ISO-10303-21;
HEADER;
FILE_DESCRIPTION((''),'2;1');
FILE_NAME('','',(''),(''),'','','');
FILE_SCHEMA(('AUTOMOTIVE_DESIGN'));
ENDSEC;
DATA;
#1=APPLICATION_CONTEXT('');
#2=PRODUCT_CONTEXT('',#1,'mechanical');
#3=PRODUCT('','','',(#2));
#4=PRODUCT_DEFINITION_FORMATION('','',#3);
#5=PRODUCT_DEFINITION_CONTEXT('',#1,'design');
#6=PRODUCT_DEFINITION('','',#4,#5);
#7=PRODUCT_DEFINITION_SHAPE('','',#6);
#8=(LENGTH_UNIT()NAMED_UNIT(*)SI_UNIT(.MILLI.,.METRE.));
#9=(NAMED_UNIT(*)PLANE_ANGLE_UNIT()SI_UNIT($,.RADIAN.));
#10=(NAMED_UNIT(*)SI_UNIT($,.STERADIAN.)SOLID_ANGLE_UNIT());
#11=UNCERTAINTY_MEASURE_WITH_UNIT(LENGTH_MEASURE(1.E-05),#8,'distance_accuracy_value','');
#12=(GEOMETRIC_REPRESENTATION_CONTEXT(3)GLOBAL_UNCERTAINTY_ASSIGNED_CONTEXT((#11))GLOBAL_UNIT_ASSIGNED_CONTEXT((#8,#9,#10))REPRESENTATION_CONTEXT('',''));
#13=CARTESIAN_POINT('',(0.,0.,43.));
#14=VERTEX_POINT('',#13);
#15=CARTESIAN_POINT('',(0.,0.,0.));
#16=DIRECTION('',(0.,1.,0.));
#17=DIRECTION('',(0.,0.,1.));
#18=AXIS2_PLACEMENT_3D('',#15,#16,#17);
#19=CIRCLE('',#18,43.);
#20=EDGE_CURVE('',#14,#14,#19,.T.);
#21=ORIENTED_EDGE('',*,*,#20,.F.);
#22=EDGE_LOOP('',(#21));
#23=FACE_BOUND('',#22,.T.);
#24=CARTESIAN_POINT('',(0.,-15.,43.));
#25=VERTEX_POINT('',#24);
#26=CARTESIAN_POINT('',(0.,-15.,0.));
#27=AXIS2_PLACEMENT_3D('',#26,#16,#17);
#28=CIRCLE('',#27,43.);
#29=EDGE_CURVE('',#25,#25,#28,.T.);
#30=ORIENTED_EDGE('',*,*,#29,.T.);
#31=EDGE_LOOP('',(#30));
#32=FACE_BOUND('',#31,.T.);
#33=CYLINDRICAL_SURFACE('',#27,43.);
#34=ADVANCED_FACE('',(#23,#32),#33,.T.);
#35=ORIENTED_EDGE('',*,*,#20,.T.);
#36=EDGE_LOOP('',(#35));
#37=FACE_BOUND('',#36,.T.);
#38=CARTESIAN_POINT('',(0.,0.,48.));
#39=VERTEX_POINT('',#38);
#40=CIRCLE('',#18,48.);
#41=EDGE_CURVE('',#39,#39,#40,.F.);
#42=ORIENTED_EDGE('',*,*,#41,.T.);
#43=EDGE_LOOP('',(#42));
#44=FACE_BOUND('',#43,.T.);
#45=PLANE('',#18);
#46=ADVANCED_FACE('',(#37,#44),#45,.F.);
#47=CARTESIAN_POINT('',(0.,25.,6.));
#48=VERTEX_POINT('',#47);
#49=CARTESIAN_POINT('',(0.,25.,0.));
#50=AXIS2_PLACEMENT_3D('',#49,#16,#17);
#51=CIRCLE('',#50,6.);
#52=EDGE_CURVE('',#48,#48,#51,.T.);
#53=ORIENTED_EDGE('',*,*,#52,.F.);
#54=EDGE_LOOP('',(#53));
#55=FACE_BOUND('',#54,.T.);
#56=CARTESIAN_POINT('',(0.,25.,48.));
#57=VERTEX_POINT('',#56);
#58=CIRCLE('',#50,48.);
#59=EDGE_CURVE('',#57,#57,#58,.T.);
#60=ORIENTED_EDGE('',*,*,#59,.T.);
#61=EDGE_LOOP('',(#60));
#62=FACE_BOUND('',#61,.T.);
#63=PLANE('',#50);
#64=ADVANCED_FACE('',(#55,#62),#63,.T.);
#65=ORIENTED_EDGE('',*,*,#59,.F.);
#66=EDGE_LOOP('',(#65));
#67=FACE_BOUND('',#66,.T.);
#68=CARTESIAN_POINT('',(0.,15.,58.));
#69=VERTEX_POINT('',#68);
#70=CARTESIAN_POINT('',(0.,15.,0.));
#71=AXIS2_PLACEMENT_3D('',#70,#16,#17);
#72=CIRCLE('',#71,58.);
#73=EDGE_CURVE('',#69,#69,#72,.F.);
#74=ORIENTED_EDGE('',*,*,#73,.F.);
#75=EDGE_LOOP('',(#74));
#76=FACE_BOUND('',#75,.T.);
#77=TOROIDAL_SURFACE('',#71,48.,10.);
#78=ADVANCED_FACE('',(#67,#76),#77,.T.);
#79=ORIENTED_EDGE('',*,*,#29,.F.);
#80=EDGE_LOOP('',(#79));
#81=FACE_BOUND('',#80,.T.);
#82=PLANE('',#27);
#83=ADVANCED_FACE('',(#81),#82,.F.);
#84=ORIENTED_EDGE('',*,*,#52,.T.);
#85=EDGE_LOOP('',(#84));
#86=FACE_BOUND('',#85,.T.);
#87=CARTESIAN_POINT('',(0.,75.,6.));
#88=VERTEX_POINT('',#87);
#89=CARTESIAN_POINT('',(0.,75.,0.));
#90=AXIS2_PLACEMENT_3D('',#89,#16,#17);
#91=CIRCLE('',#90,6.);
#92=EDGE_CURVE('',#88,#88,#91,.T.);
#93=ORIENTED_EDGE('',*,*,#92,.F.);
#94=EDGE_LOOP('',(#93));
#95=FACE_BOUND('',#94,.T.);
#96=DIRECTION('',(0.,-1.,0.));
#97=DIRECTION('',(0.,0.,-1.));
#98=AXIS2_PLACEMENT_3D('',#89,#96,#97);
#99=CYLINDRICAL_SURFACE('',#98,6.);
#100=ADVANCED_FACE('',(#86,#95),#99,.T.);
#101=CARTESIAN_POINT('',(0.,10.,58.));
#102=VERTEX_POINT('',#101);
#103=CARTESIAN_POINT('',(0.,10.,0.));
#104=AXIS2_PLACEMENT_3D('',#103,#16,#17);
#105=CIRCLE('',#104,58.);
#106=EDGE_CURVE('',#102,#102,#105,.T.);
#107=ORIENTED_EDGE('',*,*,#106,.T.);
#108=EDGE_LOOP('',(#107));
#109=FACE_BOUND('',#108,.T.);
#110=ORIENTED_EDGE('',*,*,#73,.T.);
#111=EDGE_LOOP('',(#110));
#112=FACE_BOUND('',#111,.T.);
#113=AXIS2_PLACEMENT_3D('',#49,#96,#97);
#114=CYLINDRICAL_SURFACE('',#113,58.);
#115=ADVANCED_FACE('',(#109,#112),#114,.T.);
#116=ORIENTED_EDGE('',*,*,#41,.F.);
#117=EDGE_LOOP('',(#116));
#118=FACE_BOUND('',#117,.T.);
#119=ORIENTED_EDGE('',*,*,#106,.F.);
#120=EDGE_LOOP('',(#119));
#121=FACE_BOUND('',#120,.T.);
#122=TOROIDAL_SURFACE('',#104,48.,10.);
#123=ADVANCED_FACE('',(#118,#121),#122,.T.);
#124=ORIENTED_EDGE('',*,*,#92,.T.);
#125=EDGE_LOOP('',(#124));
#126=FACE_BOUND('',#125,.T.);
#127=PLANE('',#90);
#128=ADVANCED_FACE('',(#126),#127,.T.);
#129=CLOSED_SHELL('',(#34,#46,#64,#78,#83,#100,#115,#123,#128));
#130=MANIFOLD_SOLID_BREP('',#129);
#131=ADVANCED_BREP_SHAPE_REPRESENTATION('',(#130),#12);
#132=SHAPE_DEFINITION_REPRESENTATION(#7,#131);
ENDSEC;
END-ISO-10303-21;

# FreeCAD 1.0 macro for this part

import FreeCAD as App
import Part
import Sketcher


def edges_at(feature, points):
    """Names of the edges that pass closest to the given points."""
    edges = feature.Shape.Edges
    near = lambda p: min(range(len(edges)), key=lambda i: edges[i].distToShape(Part.Vertex(*p))[0])
    return sorted({f"Edge{near(p) + 1}" for p in points})

doc = App.newDocument("Part")
body = doc.addObject("PartDesign::Body", "Body")

sketch1 = doc.addObject("Sketcher::SketchObject", "Sketch")
body.addObject(sketch1)
sketch1.AttachmentSupport = (doc.XZ_Plane, [""])
sketch1.MapMode = "FlatFace"
sketch1.addGeometry(Part.Circle(App.Vector(0, 0, 0), App.Vector(0, 0, 1), 58), False)
sketch1.addConstraint(Sketcher.Constraint("Coincident", 0, 3, -1, 1))
sketch1.addConstraint(Sketcher.Constraint("Diameter", 0, 116.0))
pad1 = doc.addObject("PartDesign::Pad", "Pad")
body.addObject(pad1)
pad1.Profile = sketch1
pad1.Length = 25
pad1.Reversed = True

sketch2 = doc.addObject("Sketcher::SketchObject", "Sketch001")
body.addObject(sketch2)
sketch2.AttachmentSupport = (doc.XZ_Plane, [""])
sketch2.MapMode = "FlatFace"
sketch2.addGeometry(Part.Circle(App.Vector(0, 0, 0), App.Vector(0, 0, 1), 43), False)
sketch2.addConstraint(Sketcher.Constraint("Coincident", 0, 3, -1, 1))
sketch2.addConstraint(Sketcher.Constraint("Diameter", 0, 86.0))
pad2 = doc.addObject("PartDesign::Pad", "Pad001")
body.addObject(pad2)
pad2.Profile = sketch2
pad2.Length = 15
doc.recompute()

fillet = doc.addObject("PartDesign::Fillet", "Fillet")
body.addObject(fillet)
fillet.Base = (pad2, edges_at(pad2, [(0, 0, -58), (0, 25, -58)]))
fillet.Radius = 10

sketch3 = doc.addObject("Sketcher::SketchObject", "Sketch002")
body.addObject(sketch3)
sketch3.AttachmentSupport = (doc.XZ_Plane, [""])
sketch3.MapMode = "FlatFace"
sketch3.AttachmentOffset = App.Placement(App.Vector(0, 0, -25), App.Rotation())
sketch3.addGeometry(Part.Circle(App.Vector(0, 0, 0), App.Vector(0, 0, 1), 6), False)
sketch3.addConstraint(Sketcher.Constraint("Coincident", 0, 3, -1, 1))
sketch3.addConstraint(Sketcher.Constraint("Diameter", 0, 12.0))
pad3 = doc.addObject("PartDesign::Pad", "Pad002")
body.addObject(pad3)
pad3.Profile = sketch3
pad3.Length = 50
pad3.Reversed = True

doc.recompute()
